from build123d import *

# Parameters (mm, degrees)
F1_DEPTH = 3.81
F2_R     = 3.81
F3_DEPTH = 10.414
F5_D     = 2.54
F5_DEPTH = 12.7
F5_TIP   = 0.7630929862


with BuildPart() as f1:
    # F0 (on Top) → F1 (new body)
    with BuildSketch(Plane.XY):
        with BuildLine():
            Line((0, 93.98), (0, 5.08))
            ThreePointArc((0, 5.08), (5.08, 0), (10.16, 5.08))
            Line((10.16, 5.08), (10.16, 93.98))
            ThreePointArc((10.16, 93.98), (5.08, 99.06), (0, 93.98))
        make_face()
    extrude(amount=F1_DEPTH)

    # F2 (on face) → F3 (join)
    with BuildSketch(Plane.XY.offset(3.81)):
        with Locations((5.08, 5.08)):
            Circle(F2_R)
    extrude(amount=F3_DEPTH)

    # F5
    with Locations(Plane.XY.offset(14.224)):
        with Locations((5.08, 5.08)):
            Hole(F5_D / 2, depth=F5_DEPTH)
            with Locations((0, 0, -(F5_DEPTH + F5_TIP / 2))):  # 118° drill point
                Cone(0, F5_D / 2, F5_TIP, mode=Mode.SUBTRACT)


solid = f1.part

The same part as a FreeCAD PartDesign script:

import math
import FreeCAD as App
import Part
import Sketcher

V = App.Vector
Q = App.Units.Quantity

doc = App.newDocument("Part")
params = doc.addObject("Spreadsheet::Sheet", "Params")
for row, (alias, value) in enumerate([
    ("sketch1_radius", "0.2 in"),
    ("sketch1_height", "3.5 in"),
    ("pad1_length", "0.15 in"),
    ("sketch2_diameter", "0.3 in"),
    ("pad2_length", "0.41 in"),
    ("sketch3_diameter", "0.1 in"),
    ("hole_diameter", "0.1 in"),
    ("hole_depth", "0.5 in"),
], start=1):
    params.set(f"A{row}", alias)
    params.set(f"B{row}", "=" + value)
    params.setAlias(f"B{row}", alias)

body = doc.addObject("PartDesign::Body", "Body")

sketch1 = doc.addObject("Sketcher::SketchObject", "Sketch")
body.addObject(sketch1)
sketch1.AttachmentSupport = (doc.XY_Plane, [""])
sketch1.MapMode = "FlatFace"
sketch1.addGeometry(Part.LineSegment(V(0, 94, 0), V(0, 5, 0)), False)
sketch1.addGeometry(Part.ArcOfCircle(Part.Circle(V(5, 5, 0), V(0, 0, 1), 5), math.radians(180), math.radians(360)), False)
sketch1.addGeometry(Part.LineSegment(V(10, 5, 0), V(10, 94, 0)), False)
sketch1.addGeometry(Part.ArcOfCircle(Part.Circle(V(5, 94, 0), V(0, 0, 1), 5), math.radians(0), math.radians(180)), False)
sketch1.addConstraint(Sketcher.Constraint("Tangent", 0, 2, 1, 1))
sketch1.addConstraint(Sketcher.Constraint("Tangent", 1, 2, 2, 1))
sketch1.addConstraint(Sketcher.Constraint("Tangent", 2, 2, 3, 1))
sketch1.addConstraint(Sketcher.Constraint("Tangent", 3, 2, 0, 1))
sketch1.addConstraint(Sketcher.Constraint("Vertical", 0))
sketch1.addConstraint(Sketcher.Constraint("Vertical", 2))
sketch1.addConstraint(Sketcher.Constraint("PointOnObject", 0, 2, -2))
sketch1.addConstraint(Sketcher.Constraint("Radius", 1, Q("0.2 in")))
sketch1.addConstraint(Sketcher.Constraint("DistanceY", 0, 2, 0, 1, Q("3.5 in")))
sketch1.addConstraint(Sketcher.Constraint("DistanceY", -1, 1, 1, 3, Q("0.2 in")))
sketch1.setExpression("Constraints[7]", "Params.sketch1_radius")
sketch1.setExpression("Constraints[8]", "Params.sketch1_height")
pad1 = doc.addObject("PartDesign::Pad", "Pad")
body.addObject(pad1)
pad1.Profile = sketch1
pad1.setExpression("Length", "Params.pad1_length")

sketch2 = doc.addObject("Sketcher::SketchObject", "Sketch001")
body.addObject(sketch2)
sketch2.AttachmentSupport = (doc.XY_Plane, [""])
sketch2.MapMode = "FlatFace"
sketch2.AttachmentOffset = App.Placement(V(0, 0, 0.15 * 25.4), App.Rotation())
sketch2.addGeometry(Part.Circle(V(5.1, 5.1, 0), V(0, 0, 1), 3.8), False)
sketch2.addConstraint(Sketcher.Constraint("Diameter", 0, Q("0.3 in")))
sketch2.addConstraint(Sketcher.Constraint("DistanceX", -1, 1, 0, 3, Q("0.2 in")))
sketch2.addConstraint(Sketcher.Constraint("DistanceY", -1, 1, 0, 3, Q("0.2 in")))
sketch2.setExpression("Constraints[0]", "Params.sketch2_diameter")
pad2 = doc.addObject("PartDesign::Pad", "Pad001")
body.addObject(pad2)
pad2.Profile = sketch2
pad2.setExpression("Length", "Params.pad2_length")

sketch3 = doc.addObject("Sketcher::SketchObject", "Sketch002")
body.addObject(sketch3)
sketch3.AttachmentSupport = (doc.XY_Plane, [""])
sketch3.MapMode = "FlatFace"
sketch3.AttachmentOffset = App.Placement(V(0, 0, 0.56 * 25.4), App.Rotation())
sketch3.addGeometry(Part.Circle(V(5.1, 5.1, 0), V(0, 0, 1), 1.3), False)
sketch3.addConstraint(Sketcher.Constraint("Diameter", 0, Q("0.1 in")))
sketch3.addConstraint(Sketcher.Constraint("DistanceX", -1, 1, 0, 3, Q("0.2 in")))
sketch3.addConstraint(Sketcher.Constraint("DistanceY", -1, 1, 0, 3, Q("0.2 in")))
sketch3.setExpression("Constraints[0]", "Params.sketch3_diameter")
doc.recompute()
hole = doc.addObject("PartDesign::Hole", "Hole")
body.addObject(hole)
hole.Profile = sketch3
hole.ThreadType = "None"
hole.setExpression("Diameter", "Params.hole_diameter")
hole.DepthType = "Dimension"
hole.setExpression("Depth", "Params.hole_depth")
hole.DrillPoint = "Angled"
hole.DrillPointAngle = 118

doc.recompute()
